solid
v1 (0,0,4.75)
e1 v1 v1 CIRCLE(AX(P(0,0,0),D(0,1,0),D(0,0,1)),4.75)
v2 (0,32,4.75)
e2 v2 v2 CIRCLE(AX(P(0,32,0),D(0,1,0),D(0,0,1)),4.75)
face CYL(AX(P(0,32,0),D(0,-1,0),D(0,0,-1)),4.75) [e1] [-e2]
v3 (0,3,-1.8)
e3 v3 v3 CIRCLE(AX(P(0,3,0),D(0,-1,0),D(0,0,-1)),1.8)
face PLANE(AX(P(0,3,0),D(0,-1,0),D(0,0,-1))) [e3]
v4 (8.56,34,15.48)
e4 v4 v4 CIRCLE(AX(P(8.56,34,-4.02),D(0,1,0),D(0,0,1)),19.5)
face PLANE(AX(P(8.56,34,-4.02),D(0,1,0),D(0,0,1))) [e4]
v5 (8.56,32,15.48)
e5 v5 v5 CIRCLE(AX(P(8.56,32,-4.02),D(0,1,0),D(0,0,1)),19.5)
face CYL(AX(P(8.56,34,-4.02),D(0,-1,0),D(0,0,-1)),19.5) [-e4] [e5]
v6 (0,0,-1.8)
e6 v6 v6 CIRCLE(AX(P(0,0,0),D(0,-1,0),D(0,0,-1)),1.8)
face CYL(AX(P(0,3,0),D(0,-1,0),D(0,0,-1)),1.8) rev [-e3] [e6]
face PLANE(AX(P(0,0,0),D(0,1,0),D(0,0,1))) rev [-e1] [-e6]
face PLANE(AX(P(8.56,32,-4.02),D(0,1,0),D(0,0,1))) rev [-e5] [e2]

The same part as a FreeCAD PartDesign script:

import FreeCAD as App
import Part
import Sketcher

V = App.Vector
Q = App.Units.Quantity

doc = App.newDocument("Part")
body = doc.addObject("PartDesign::Body", "Body")

sketch1 = body.newObject("Sketcher::SketchObject", "Sketch")
sketch1.AttachmentSupport = (doc.getObject("XZ_Plane"), [""])
sketch1.MapMode = "FlatFace"
sketch1.addGeometry(Part.Circle(V(0, 0, 0), V(0, 0, 1), 4.8), False)
sketch1.addConstraint(Sketcher.Constraint("Coincident", 0, 3, -1, 1))
sketch1.addConstraint(Sketcher.Constraint("Diameter", 0, Q("9.5 mm")))
pad1 = body.newObject("PartDesign::Pad", "Pad")
pad1.Profile = sketch1
pad1.Length = 32
pad1.Reversed = True

sketch2 = body.newObject("Sketcher::SketchObject", "Sketch001")
sketch2.AttachmentSupport = (doc.getObject("XZ_Plane"), [""])
sketch2.MapMode = "FlatFace"
sketch2.addGeometry(Part.Circle(V(0, 0, 0), V(0, 0, 1), 1.8), False)
sketch2.addConstraint(Sketcher.Constraint("Coincident", 0, 3, -1, 1))
sketch2.addConstraint(Sketcher.Constraint("Diameter", 0, Q("3.6 mm")))
pocket1 = body.newObject("PartDesign::Pocket", "Pocket")
pocket1.Profile = sketch2
pocket1.Length = 3

sketch3 = body.newObject("Sketcher::SketchObject", "Sketch002")
sketch3.AttachmentSupport = (doc.getObject("XZ_Plane"), [""])
sketch3.MapMode = "FlatFace"
sketch3.AttachmentOffset = App.Placement(V(0, 0, -32), App.Rotation())
sketch3.addGeometry(Part.Circle(V(9, -4, 0), V(0, 0, 1), 20), False)
sketch3.addConstraint(Sketcher.Constraint("Diameter", 0, Q("39 mm")))
sketch3.addConstraint(Sketcher.Constraint("DistanceX", -1, 1, 0, 3, Q("8.56 mm")))
sketch3.addConstraint(Sketcher.Constraint("DistanceY", 0, 3, -1, 1, Q("4.02 mm")))
pad2 = body.newObject("PartDesign::Pad", "Pad001")
pad2.Profile = sketch3
pad2.Length = 2
pad2.Reversed = True

doc.recompute()
